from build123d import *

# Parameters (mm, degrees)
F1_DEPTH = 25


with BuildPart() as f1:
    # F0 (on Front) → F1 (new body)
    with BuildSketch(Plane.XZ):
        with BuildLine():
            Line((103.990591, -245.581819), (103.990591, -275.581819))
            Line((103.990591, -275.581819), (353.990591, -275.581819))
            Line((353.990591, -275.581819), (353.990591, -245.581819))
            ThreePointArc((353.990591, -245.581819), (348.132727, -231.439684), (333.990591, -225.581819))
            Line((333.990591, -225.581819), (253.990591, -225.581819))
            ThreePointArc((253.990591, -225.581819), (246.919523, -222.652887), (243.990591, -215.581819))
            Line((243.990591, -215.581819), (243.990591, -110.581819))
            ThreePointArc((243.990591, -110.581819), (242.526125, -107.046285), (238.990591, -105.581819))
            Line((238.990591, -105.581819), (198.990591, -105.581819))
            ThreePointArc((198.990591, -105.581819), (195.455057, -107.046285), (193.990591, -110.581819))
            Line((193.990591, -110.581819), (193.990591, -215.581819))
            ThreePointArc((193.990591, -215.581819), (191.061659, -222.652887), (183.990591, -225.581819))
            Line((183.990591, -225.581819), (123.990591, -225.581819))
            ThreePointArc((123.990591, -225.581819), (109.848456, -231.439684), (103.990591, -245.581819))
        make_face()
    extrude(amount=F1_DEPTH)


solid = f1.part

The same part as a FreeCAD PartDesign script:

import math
import FreeCAD as App
import Part
import Sketcher
from FreeCAD import Vector

doc = App.newDocument("Part")
body = doc.addObject("PartDesign::Body", "Body")

# Sketch on XZ plane
sketch1 = body.newObject("Sketcher::SketchObject", "Sketch")
sketch1.AttachmentSupport = (doc.getObject("XZ_Plane"), [""])
sketch1.MapMode = "FlatFace"
sketch1.addGeometry([
    Part.LineSegment(Vector(103.990591, -245.581819, 0), Vector(103.990591, -275.581819, 0)),  # 0
    Part.LineSegment(Vector(103.990591, -275.581819, 0), Vector(353.990591, -275.581819, 0)),  # 1
    Part.LineSegment(Vector(353.990591, -275.581819, 0), Vector(353.990591, -245.581819, 0)),  # 2
    Part.ArcOfCircle(Part.Circle(Vector(333.990591, -245.581819, 0), Vector(0, 0, 1), 20), math.radians(0.000001), math.radians(89.999999)),  # 3
    Part.LineSegment(Vector(333.990591, -225.581819, 0), Vector(253.990591, -225.581819, 0)),  # 4
    Part.ArcOfCircle(Part.Circle(Vector(253.99059, -215.58182, 0), Vector(0, 0, 1), 9.999999), math.radians(179.999996), math.radians(270.000004)),  # 5
    Part.LineSegment(Vector(243.990591, -215.581819, 0), Vector(243.990591, -110.581819, 0)),  # 6
    Part.ArcOfCircle(Part.Circle(Vector(238.990591, -110.581819, 0), Vector(0, 0, 1), 5), math.radians(-0.000004), math.radians(90.000004)),  # 7
    Part.LineSegment(Vector(238.990591, -105.581819, 0), Vector(198.990591, -105.581819, 0)),  # 8
    Part.ArcOfCircle(Part.Circle(Vector(198.990591, -110.581819, 0), Vector(0, 0, 1), 5), math.radians(89.999996), math.radians(180.000004)),  # 9
    Part.LineSegment(Vector(193.990591, -110.581819, 0), Vector(193.990591, -215.581819, 0)),  # 10
    Part.ArcOfCircle(Part.Circle(Vector(183.990592, -215.58182, 0), Vector(0, 0, 1), 9.999999), math.radians(-90.000004), math.radians(0.000004)),  # 11
    Part.LineSegment(Vector(183.990591, -225.581819, 0), Vector(123.990591, -225.581819, 0)),  # 12
    Part.ArcOfCircle(Part.Circle(Vector(123.990593, -245.581821, 0), Vector(0, 0, 1), 20.000002), math.radians(90.000006), math.radians(179.999994)),  # 13
], False)
sketch1.addConstraint([
    Sketcher.Constraint("Coincident", 0, 2, 1, 1),
    Sketcher.Constraint("Coincident", 1, 2, 2, 1),
    Sketcher.Constraint("Tangent", 2, 2, 3, 1),
    Sketcher.Constraint("Tangent", 3, 2, 4, 1),
    Sketcher.Constraint("Tangent", 4, 2, 5, 2),
    Sketcher.Constraint("Tangent", 5, 1, 6, 1),
    Sketcher.Constraint("Tangent", 6, 2, 7, 1),
    Sketcher.Constraint("Tangent", 7, 2, 8, 1),
    Sketcher.Constraint("Tangent", 8, 2, 9, 1),
    Sketcher.Constraint("Tangent", 9, 2, 10, 1),
    Sketcher.Constraint("Tangent", 10, 2, 11, 2),
    Sketcher.Constraint("Tangent", 11, 1, 12, 1),
    Sketcher.Constraint("Tangent", 12, 2, 13, 1),
    Sketcher.Constraint("Tangent", 13, 2, 0, 1),
    Sketcher.Constraint("Vertical", 0),
    Sketcher.Constraint("Horizontal", 1),
    Sketcher.Constraint("Vertical", 2),
    Sketcher.Constraint("Horizontal", 4),
    Sketcher.Constraint("Vertical", 6),
    Sketcher.Constraint("Horizontal", 8),
    Sketcher.Constraint("Vertical", 10),
    Sketcher.Constraint("Horizontal", 12),
    Sketcher.Constraint("Equal", 7, 9),
    Sketcher.Constraint("Equal", 5, 11),
    Sketcher.Constraint("Equal", 3, 13),
    Sketcher.Constraint("Horizontal", 5, 3, 11, 3),
    Sketcher.Constraint("Radius", 3, 20.0),
    Sketcher.Constraint("Radius", 5, 9.999999),
    Sketcher.Constraint("Radius", 7, 5.0),
    Sketcher.Constraint("DistanceX", 1, 1, 1, 2, 250.0),
    Sketcher.Constraint("DistanceX", 4, 2, 4, 1, 80.0),
    Sketcher.Constraint("DistanceX", 8, 2, 8, 1, 40.0),
    Sketcher.Constraint("DistanceY", 0, 2, 0, 1, 30.0),
    Sketcher.Constraint("DistanceY", 6, 1, 6, 2, 105.0),
    Sketcher.Constraint("DistanceX", -1, 1, 3, 3, 333.990591),
    Sketcher.Constraint("DistanceY", 3, 3, -1, 1, 245.581819),
])
pad1 = body.newObject("PartDesign::Pad", "Pad")
pad1.Profile = sketch1
pad1.Length = 25

doc.recompute()
